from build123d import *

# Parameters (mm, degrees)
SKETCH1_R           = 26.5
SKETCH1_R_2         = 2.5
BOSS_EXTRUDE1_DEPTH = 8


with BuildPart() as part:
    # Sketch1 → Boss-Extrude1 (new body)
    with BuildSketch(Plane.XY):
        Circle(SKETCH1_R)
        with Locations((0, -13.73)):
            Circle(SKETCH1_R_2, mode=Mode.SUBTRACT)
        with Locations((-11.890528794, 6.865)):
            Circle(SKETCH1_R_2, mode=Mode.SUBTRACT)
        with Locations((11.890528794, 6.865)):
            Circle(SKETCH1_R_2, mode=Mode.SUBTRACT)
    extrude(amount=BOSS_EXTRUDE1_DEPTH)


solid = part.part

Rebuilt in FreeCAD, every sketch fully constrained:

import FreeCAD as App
import Part
import Sketcher

V = App.Vector
Q = App.Units.Quantity

doc = App.newDocument("Part")
body = doc.addObject("PartDesign::Body", "Body")

# Sketch on XY plane
sketch1 = doc.addObject("Sketcher::SketchObject", "Sketch")
body.addObject(sketch1)
sketch1.AttachmentSupport = (doc.XY_Plane, [""])
sketch1.MapMode = "FlatFace"
sketch1.addGeometry([
    Part.Circle(V(0, 0, 0), V(0, 0, 1), 26.5),
    Part.Circle(V(0, -13.7, 0), V(0, 0, 1), 2.5),
    Part.Circle(V(-11.9, 6.9, 0), V(0, 0, 1), 2.5),
    Part.Circle(V(11.9, 6.9, 0), V(0, 0, 1), 2.5),
], False)
sketch1.addConstraint([
    Sketcher.Constraint("Coincident", 0, 3, -1, 1),
    Sketcher.Constraint("Equal", 1, 2),
    Sketcher.Constraint("Equal", 2, 3),
    Sketcher.Constraint("Symmetric", 2, 3, 3, 3, -2),
    Sketcher.Constraint("PointOnObject", 1, 3, -2),
    Sketcher.Constraint("Diameter", 0, Q("53 mm")),
    Sketcher.Constraint("Diameter", 1, Q("5 mm")),
    Sketcher.Constraint("DistanceY", 1, 3, -1, 1, Q("13.73 mm")),
    Sketcher.Constraint("DistanceY", -1, 1, 2, 3, Q("6.865 mm")),
    Sketcher.Constraint("DistanceX", 2, 3, -1, 1, Q("11.890529 mm")),
])
pad1 = doc.addObject("PartDesign::Pad", "Pad")
body.addObject(pad1)
pad1.Profile = sketch1
pad1.Length = 8

doc.recompute()
